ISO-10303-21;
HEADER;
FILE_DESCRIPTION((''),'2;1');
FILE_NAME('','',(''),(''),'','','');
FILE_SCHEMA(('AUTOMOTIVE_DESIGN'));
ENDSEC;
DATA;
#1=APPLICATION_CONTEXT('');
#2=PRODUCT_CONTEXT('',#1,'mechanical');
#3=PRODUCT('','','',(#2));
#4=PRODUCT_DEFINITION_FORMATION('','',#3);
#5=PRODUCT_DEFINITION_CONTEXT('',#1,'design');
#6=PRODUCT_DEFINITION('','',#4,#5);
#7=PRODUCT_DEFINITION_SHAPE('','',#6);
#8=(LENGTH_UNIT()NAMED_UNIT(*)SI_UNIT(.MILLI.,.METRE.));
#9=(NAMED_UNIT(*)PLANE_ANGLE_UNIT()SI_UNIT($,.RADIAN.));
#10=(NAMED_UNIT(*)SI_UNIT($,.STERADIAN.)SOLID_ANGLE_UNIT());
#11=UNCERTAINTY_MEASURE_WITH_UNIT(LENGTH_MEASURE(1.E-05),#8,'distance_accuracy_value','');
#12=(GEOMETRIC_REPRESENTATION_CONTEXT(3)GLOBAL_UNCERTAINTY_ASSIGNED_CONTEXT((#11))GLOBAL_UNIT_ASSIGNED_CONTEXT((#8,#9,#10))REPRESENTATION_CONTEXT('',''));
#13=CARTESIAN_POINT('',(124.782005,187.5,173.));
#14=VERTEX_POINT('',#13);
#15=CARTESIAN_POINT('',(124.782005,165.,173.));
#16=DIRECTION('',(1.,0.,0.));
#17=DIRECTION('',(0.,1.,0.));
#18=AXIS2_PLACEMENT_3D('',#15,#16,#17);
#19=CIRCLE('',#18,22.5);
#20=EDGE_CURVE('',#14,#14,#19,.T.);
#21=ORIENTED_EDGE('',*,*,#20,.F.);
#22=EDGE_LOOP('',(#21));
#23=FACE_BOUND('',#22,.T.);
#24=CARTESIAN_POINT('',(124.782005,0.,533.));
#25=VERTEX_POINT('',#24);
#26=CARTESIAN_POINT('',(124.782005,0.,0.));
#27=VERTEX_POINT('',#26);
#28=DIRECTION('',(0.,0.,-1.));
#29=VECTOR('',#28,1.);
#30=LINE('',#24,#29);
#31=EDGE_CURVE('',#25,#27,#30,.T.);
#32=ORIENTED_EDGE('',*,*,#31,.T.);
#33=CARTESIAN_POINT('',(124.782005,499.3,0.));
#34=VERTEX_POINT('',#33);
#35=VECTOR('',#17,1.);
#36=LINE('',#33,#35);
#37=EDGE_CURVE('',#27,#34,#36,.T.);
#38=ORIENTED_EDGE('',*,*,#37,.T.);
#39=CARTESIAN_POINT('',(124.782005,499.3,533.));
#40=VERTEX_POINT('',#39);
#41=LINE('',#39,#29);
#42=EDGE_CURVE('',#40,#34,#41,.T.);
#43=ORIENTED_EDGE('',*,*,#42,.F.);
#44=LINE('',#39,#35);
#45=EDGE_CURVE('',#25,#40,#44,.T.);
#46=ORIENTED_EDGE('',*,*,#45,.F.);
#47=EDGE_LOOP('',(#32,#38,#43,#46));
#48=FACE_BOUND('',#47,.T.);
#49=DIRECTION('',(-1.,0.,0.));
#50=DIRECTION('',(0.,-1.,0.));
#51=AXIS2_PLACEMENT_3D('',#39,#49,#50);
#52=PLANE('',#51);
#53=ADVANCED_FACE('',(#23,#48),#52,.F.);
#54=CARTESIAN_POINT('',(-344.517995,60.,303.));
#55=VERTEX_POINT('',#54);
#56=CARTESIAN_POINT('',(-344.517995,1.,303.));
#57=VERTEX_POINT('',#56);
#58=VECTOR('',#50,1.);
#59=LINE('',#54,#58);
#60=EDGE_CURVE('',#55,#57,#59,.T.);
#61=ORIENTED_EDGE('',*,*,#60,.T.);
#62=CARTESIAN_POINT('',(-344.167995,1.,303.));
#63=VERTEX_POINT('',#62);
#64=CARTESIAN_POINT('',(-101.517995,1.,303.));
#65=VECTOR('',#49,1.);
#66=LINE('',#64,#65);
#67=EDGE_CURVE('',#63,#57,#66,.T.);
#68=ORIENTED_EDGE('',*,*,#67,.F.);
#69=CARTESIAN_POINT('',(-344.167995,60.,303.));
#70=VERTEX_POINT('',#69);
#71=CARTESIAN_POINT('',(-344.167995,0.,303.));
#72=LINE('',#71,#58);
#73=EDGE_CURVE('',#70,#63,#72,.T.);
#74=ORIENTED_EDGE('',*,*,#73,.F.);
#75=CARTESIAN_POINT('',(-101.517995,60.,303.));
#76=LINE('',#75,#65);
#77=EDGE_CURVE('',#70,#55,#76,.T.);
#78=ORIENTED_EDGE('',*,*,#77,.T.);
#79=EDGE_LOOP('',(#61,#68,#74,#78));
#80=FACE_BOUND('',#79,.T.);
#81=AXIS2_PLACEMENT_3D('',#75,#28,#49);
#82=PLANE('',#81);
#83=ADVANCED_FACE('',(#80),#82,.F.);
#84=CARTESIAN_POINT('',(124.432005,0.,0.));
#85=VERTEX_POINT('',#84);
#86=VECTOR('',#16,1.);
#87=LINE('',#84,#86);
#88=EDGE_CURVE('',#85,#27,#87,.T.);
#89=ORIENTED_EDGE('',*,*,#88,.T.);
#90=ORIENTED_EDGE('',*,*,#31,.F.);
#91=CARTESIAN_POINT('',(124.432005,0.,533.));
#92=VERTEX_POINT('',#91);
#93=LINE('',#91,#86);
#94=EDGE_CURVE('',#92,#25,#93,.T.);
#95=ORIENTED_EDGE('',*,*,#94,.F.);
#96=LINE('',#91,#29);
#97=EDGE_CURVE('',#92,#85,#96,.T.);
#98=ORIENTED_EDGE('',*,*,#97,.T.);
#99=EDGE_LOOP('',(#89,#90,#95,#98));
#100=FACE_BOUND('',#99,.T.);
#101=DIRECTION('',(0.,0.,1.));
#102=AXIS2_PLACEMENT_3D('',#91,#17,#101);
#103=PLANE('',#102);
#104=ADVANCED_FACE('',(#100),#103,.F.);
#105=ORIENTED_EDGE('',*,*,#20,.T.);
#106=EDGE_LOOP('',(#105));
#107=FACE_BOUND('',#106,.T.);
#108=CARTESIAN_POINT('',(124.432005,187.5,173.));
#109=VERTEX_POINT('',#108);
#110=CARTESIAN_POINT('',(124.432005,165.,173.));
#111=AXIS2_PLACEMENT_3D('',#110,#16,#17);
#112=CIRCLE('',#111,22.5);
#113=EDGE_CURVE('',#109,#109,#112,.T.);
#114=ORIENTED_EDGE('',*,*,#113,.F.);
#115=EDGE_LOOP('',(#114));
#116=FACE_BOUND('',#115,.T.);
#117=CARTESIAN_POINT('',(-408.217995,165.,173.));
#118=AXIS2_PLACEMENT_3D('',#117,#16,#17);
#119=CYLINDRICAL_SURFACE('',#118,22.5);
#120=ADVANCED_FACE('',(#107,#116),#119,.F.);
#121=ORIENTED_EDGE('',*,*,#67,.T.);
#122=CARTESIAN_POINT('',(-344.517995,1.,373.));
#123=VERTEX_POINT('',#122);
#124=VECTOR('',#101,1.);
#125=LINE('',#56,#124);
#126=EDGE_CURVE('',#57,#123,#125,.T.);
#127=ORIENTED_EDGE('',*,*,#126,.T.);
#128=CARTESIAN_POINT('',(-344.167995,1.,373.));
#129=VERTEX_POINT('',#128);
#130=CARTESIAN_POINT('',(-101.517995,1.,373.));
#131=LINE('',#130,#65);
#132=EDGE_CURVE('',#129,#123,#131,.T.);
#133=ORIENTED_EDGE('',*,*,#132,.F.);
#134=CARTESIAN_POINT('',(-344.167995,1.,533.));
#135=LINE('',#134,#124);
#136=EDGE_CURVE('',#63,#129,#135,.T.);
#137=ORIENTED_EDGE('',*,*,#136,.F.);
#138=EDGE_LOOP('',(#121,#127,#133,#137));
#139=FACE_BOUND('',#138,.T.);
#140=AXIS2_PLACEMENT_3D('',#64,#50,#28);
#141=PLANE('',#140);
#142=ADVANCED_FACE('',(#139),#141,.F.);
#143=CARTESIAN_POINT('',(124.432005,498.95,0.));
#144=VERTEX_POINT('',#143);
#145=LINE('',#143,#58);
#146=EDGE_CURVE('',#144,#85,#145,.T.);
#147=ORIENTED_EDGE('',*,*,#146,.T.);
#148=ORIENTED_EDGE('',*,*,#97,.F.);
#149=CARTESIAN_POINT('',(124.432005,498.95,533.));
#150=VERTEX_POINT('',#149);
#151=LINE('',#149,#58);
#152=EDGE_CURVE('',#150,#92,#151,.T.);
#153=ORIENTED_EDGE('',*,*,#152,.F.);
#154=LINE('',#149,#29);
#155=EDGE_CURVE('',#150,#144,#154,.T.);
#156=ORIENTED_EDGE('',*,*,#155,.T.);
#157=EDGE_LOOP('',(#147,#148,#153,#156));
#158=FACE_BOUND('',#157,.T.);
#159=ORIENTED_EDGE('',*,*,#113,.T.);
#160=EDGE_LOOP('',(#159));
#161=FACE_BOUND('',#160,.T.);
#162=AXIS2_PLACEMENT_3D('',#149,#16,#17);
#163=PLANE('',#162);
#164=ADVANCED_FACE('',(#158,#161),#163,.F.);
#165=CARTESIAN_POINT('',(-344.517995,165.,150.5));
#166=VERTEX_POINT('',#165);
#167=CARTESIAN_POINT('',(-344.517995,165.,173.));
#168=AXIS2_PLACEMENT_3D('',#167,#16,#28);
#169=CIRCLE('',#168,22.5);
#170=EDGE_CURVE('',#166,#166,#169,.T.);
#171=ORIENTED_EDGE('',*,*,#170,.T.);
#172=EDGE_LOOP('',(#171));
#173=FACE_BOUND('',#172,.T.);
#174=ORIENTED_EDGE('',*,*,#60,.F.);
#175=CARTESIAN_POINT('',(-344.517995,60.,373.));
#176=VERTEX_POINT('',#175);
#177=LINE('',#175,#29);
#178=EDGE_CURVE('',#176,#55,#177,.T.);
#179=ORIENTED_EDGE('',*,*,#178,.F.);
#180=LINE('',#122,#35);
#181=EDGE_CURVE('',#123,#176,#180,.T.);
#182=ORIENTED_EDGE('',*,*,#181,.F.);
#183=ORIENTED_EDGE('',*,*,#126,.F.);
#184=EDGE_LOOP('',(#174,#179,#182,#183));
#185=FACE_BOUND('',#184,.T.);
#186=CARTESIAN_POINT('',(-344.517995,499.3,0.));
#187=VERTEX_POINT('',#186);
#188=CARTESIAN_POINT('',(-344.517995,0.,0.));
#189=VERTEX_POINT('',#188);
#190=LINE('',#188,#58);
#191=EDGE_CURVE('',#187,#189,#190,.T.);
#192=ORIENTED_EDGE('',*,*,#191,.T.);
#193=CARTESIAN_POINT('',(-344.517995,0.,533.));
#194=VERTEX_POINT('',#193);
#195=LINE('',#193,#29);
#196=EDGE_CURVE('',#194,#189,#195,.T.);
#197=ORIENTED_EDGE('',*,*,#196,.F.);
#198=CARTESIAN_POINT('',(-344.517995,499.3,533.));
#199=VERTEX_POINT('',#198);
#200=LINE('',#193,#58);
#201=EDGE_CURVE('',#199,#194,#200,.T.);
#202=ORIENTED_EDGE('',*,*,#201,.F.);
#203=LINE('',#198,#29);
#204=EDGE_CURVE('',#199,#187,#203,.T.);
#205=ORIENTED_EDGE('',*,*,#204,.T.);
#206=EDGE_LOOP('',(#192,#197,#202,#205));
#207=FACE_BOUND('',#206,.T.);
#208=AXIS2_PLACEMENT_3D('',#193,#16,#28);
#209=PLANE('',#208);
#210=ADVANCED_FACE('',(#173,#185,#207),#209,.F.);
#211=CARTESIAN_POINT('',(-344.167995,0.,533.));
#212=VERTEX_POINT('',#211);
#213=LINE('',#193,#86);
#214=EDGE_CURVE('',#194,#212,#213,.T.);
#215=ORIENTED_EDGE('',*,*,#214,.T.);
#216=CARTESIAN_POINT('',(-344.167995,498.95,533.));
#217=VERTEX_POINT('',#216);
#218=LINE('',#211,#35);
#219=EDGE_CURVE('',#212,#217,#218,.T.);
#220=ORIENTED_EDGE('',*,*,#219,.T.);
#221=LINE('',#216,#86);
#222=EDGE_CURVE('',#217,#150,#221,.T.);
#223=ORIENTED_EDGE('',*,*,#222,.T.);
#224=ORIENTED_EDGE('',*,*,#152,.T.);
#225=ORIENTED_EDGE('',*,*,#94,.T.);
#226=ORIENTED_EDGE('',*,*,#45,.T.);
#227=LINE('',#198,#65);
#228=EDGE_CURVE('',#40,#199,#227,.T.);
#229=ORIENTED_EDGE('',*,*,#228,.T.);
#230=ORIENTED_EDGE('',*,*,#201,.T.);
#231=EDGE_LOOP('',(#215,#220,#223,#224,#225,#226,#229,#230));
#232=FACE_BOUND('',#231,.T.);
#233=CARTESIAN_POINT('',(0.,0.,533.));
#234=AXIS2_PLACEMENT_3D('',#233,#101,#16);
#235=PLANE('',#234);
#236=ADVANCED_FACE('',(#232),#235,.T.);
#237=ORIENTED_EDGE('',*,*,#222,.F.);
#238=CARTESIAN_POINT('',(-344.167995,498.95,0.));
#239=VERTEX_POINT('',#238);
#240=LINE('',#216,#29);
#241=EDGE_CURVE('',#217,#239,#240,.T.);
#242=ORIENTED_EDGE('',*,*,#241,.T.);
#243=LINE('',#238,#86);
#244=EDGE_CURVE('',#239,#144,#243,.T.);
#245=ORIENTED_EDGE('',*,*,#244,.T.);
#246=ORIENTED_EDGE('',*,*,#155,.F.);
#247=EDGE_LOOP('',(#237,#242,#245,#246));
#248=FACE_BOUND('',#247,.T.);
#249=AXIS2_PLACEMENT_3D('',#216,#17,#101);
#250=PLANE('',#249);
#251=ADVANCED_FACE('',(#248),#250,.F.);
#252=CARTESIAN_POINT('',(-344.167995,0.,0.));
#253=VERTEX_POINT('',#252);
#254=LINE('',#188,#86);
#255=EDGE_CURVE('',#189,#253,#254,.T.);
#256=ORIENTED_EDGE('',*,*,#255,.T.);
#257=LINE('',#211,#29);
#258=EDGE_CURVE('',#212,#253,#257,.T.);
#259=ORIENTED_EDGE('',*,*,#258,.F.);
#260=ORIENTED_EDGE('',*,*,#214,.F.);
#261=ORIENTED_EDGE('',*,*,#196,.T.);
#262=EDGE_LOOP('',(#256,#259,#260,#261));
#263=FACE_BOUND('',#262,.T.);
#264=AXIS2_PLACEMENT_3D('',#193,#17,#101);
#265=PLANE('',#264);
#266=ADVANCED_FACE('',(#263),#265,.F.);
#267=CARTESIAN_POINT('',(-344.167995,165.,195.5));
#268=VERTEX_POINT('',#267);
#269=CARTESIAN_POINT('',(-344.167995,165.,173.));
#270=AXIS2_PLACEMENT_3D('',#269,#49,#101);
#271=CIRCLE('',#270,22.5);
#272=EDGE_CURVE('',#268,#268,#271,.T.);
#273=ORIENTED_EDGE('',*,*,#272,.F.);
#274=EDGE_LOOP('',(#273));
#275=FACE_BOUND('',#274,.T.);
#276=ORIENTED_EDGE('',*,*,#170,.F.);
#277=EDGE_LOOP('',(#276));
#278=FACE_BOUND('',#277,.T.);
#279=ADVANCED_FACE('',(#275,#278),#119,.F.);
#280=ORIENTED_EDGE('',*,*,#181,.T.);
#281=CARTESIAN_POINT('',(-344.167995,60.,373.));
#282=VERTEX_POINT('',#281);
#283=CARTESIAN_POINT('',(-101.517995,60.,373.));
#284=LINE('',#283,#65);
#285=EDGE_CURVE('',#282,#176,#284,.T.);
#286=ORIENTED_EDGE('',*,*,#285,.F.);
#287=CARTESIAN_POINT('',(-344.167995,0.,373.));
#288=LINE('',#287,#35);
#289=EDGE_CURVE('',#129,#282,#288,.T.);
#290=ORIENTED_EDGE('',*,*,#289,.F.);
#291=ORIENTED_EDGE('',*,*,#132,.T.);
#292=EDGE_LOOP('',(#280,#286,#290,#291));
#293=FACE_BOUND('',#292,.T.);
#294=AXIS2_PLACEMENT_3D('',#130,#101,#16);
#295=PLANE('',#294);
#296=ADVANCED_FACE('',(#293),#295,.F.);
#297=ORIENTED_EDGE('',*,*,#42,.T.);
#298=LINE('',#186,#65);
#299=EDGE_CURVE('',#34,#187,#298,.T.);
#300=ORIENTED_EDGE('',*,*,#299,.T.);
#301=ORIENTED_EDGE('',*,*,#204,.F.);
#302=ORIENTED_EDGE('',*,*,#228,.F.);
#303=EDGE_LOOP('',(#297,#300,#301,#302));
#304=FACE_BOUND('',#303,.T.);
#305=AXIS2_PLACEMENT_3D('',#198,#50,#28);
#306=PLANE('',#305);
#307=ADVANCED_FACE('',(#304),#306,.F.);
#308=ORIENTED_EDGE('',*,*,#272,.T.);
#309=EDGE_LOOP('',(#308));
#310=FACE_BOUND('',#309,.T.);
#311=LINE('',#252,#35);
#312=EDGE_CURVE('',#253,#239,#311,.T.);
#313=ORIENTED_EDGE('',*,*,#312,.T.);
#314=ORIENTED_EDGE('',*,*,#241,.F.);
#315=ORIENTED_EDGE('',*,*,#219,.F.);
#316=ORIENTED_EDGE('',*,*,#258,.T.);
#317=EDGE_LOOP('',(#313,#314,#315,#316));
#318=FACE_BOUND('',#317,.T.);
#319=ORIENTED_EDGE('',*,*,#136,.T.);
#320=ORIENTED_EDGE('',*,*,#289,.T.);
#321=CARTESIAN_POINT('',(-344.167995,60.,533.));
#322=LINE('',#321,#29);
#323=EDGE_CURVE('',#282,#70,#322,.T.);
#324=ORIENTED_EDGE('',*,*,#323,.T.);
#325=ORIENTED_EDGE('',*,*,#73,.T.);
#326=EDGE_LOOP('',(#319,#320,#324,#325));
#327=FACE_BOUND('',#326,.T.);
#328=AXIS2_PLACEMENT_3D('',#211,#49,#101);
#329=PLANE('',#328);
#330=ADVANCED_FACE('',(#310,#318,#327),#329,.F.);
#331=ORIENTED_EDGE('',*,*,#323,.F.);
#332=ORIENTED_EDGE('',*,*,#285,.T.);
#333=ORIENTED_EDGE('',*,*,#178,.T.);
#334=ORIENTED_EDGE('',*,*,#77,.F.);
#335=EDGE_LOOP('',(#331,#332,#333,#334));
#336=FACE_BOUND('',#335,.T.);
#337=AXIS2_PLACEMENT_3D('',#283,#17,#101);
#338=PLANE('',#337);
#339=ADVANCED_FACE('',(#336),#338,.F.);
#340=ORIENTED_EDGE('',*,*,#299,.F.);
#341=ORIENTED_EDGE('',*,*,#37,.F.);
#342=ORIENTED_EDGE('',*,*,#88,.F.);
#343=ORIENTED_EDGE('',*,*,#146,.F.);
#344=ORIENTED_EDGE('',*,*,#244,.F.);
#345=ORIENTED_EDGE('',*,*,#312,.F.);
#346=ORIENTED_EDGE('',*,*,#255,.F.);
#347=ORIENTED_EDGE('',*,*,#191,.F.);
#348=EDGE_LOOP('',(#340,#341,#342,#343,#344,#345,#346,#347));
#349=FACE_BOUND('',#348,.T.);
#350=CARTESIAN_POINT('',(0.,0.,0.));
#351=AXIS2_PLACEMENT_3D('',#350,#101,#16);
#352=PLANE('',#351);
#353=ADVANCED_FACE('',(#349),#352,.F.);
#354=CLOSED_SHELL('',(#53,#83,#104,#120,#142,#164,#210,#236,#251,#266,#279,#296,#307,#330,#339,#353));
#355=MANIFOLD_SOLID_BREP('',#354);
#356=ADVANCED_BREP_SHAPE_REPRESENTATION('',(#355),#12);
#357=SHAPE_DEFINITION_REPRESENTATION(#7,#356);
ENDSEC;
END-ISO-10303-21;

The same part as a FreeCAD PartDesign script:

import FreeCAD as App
import Part
import Sketcher
from FreeCAD import Vector

doc = App.newDocument("Part")
body = doc.addObject("PartDesign::Body", "Body")

sketch1 = doc.addObject("Sketcher::SketchObject", "Sketch")
body.addObject(sketch1)
sketch1.AttachmentSupport = (doc.XY_Plane, [""])
sketch1.MapMode = "FlatFace"
sketch1.addGeometry([
    Part.LineSegment(Vector(-344.52, 499.3, 0), Vector(-344.52, 0, 0)),
    Part.LineSegment(Vector(-344.52, 0, 0), Vector(-344.17, 0, 0)),
    Part.LineSegment(Vector(-344.17, 0, 0), Vector(-344.17, 498.95, 0)),
    Part.LineSegment(Vector(-344.17, 498.95, 0), Vector(124.43, 498.95, 0)),
    Part.LineSegment(Vector(124.43, 498.95, 0), Vector(124.43, 0, 0)),
    Part.LineSegment(Vector(124.43, 0, 0), Vector(124.78, 0, 0)),
    Part.LineSegment(Vector(124.78, 0, 0), Vector(124.78, 499.3, 0)),
    Part.LineSegment(Vector(124.78, 499.3, 0), Vector(-344.52, 499.3, 0)),
], False)
sketch1.addConstraint([
    Sketcher.Constraint("Coincident", 0, 2, 1, 1),
    Sketcher.Constraint("Coincident", 1, 2, 2, 1),
    Sketcher.Constraint("Coincident", 2, 2, 3, 1),
    Sketcher.Constraint("Coincident", 3, 2, 4, 1),
    Sketcher.Constraint("Coincident", 4, 2, 5, 1),
    Sketcher.Constraint("Coincident", 5, 2, 6, 1),
    Sketcher.Constraint("Coincident", 6, 2, 7, 1),
    Sketcher.Constraint("Coincident", 7, 2, 0, 1),
    Sketcher.Constraint("Vertical", 0),
    Sketcher.Constraint("Horizontal", 1),
    Sketcher.Constraint("Vertical", 2),
    Sketcher.Constraint("Horizontal", 3),
    Sketcher.Constraint("Vertical", 4),
    Sketcher.Constraint("Horizontal", 5),
    Sketcher.Constraint("Vertical", 6),
    Sketcher.Constraint("Horizontal", 7),
    Sketcher.Constraint("PointOnObject", 0, 2, -1),
    Sketcher.Constraint("PointOnObject", 4, 2, -1),
    Sketcher.Constraint("Equal", 1, 5),
    Sketcher.Constraint("DistanceX", 3, 1, 3, 2, 468.6),
    Sketcher.Constraint("DistanceX", 7, 2, 7, 1, 469.3),
    Sketcher.Constraint("DistanceY", 0, 2, 0, 1, 499.3),
    Sketcher.Constraint("DistanceY", 2, 1, 2, 2, 498.95),
    Sketcher.Constraint("DistanceX", 0, 2, -1, 1, 344.517995),
])
pad1 = doc.addObject("PartDesign::Pad", "Pad")
body.addObject(pad1)
pad1.Profile = sketch1
pad1.Length = 533

sketch2 = doc.addObject("Sketcher::SketchObject", "Sketch001")
body.addObject(sketch2)
sketch2.AttachmentSupport = (doc.YZ_Plane, [""])
sketch2.MapMode = "FlatFace"
sketch2.AttachmentOffset = App.Placement(Vector(0, 0, 124.782005), App.Rotation())
sketch2.addGeometry(Part.Circle(Vector(165, 173, 0), Vector(0, 0, 1), 22), False)
sketch2.addConstraint([
    Sketcher.Constraint("Diameter", 0, 45.0),
    Sketcher.Constraint("DistanceX", -1, 1, 0, 3, 165.0),
    Sketcher.Constraint("DistanceY", -1, 1, 0, 3, 173.0),
])
pocket1 = doc.addObject("PartDesign::Pocket", "Pocket")
body.addObject(pocket1)
pocket1.Profile = sketch2
pocket1.Length = 533

sketch3 = doc.addObject("Sketcher::SketchObject", "Sketch002")
body.addObject(sketch3)
sketch3.AttachmentSupport = (doc.YZ_Plane, [""])
sketch3.MapMode = "FlatFace"
sketch3.AttachmentOffset = App.Placement(Vector(0, 0, -344.517995), App.Rotation())
sketch3.addGeometry([
    Part.LineSegment(Vector(60, 303, 0), Vector(1, 303, 0)),
    Part.LineSegment(Vector(1, 303, 0), Vector(1, 373, 0)),
    Part.LineSegment(Vector(1, 373, 0), Vector(60, 373, 0)),
    Part.LineSegment(Vector(60, 373, 0), Vector(60, 303, 0)),
], False)
sketch3.addConstraint([
    Sketcher.Constraint("Coincident", 0, 2, 1, 1),
    Sketcher.Constraint("Coincident", 1, 2, 2, 1),
    Sketcher.Constraint("Coincident", 2, 2, 3, 1),
    Sketcher.Constraint("Coincident", 3, 2, 0, 1),
    Sketcher.Constraint("Horizontal", 0),
    Sketcher.Constraint("Vertical", 1),
    Sketcher.Constraint("Horizontal", 2),
    Sketcher.Constraint("Vertical", 3),
    Sketcher.Constraint("DistanceX", 0, 2, 0, 1, 59.0),
    Sketcher.Constraint("DistanceY", 1, 1, 1, 2, 70.0),
    Sketcher.Constraint("DistanceX", -1, 1, 0, 2, 1.0),
    Sketcher.Constraint("DistanceY", -1, 1, 0, 2, 303.0),
])
pocket2 = doc.addObject("PartDesign::Pocket", "Pocket001")
body.addObject(pocket2)
pocket2.Profile = sketch3
pocket2.Length = 243
pocket2.Reversed = True

doc.recompute()
